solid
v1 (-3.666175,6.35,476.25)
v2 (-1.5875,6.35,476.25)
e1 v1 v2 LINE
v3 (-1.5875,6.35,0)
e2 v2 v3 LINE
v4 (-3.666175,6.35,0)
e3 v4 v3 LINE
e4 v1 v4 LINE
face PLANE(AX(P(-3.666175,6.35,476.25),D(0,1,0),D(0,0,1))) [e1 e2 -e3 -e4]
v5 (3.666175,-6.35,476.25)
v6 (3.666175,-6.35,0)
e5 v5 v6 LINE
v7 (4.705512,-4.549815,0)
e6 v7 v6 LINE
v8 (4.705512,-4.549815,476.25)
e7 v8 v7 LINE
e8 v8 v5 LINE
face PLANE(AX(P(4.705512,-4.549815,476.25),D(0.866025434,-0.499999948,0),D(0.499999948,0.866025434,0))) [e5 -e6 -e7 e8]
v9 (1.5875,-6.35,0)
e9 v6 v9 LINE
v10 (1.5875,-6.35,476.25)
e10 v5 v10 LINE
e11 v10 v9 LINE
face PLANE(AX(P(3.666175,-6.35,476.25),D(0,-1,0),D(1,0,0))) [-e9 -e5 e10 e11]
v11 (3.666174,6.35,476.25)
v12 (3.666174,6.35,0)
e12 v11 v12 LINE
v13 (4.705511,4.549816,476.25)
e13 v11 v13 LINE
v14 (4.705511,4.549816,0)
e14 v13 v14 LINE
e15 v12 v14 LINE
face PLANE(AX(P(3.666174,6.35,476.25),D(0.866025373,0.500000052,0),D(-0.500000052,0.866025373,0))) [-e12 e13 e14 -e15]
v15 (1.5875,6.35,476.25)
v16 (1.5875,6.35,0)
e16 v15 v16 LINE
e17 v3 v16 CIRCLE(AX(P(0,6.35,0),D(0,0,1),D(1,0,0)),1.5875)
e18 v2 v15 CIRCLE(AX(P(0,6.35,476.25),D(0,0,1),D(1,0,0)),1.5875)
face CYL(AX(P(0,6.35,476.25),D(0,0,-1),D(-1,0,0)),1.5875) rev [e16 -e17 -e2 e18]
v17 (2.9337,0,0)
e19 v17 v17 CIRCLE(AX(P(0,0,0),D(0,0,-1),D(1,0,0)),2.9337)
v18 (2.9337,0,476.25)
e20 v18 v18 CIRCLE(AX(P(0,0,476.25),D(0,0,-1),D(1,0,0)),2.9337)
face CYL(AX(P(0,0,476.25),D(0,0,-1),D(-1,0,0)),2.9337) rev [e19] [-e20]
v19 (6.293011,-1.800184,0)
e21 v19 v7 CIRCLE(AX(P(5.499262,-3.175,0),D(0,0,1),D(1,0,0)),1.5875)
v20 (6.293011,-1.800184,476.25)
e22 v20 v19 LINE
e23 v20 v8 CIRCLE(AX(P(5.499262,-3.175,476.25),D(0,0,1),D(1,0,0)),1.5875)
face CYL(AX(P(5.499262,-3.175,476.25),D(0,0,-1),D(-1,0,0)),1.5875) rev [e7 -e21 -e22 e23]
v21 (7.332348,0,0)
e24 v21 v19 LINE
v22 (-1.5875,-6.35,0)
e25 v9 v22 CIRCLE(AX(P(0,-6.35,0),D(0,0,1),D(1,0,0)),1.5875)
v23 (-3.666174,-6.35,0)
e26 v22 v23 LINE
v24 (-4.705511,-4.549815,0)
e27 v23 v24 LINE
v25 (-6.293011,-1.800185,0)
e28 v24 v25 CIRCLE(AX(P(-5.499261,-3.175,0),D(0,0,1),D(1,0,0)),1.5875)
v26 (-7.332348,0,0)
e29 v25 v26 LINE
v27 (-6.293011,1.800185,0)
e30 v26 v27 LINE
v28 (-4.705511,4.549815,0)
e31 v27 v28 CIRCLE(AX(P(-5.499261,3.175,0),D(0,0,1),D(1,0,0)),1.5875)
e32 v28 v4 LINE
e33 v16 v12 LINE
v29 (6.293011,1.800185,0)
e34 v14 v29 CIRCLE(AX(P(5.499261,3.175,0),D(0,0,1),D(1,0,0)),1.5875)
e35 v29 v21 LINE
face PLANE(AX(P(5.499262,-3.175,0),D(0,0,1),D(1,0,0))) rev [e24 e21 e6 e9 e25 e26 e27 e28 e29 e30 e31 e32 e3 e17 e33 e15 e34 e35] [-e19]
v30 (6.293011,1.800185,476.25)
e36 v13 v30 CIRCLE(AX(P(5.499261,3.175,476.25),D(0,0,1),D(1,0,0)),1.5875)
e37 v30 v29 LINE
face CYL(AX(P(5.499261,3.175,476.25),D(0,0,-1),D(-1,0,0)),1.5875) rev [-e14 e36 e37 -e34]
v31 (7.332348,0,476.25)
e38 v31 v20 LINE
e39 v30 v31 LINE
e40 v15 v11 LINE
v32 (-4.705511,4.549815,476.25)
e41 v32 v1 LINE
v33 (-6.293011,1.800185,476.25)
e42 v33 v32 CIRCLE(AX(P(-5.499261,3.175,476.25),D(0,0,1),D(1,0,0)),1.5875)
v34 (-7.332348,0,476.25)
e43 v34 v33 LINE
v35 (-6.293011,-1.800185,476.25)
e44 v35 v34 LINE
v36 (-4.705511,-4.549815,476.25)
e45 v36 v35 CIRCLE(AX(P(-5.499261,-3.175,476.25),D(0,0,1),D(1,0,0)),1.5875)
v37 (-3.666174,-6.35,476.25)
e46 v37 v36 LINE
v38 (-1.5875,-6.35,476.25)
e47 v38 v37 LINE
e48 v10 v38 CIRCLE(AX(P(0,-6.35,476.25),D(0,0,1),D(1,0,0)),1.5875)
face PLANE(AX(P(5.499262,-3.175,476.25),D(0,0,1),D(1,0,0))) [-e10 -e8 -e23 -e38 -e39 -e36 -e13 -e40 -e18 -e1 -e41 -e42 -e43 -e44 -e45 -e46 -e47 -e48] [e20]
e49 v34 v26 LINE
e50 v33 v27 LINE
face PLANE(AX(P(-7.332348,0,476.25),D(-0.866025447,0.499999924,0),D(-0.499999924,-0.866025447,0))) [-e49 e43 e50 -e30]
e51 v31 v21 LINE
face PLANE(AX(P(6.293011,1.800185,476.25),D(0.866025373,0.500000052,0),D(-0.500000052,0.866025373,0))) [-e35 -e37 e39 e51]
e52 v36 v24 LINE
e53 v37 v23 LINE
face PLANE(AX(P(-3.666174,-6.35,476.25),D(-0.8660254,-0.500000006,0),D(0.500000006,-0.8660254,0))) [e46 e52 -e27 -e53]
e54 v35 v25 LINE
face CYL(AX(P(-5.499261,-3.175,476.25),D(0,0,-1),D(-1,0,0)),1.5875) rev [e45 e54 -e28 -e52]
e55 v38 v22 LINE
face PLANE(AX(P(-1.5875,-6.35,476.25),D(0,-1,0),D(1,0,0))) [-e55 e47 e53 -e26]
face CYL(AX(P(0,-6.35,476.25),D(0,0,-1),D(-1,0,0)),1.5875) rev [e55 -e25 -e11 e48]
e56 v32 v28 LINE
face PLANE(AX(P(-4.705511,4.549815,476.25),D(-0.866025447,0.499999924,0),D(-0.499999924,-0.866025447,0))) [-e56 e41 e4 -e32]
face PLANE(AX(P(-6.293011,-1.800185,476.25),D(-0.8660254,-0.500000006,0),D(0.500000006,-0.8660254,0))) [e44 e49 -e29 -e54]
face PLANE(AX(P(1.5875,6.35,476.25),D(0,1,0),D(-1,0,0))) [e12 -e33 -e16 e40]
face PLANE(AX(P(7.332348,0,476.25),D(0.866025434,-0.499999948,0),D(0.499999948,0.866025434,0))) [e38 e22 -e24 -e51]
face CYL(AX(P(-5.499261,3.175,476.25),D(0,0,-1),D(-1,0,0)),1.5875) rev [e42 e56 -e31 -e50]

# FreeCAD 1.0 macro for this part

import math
import FreeCAD as App
import Part
import Sketcher
from FreeCAD import Vector
Q = App.Units.Quantity

doc = App.newDocument("Part")
body = doc.addObject("PartDesign::Body", "Body")

# Sketch on XY plane
sketch1 = body.newObject("Sketcher::SketchObject", "Sketch")
sketch1.AttachmentSupport = (doc.getObject("XY_Plane"), [""])
sketch1.MapMode = "FlatFace"
sketch1.addGeometry([
    Part.LineSegment(Vector(4.7, -4.5, 0), Vector(3.7, -6.3, 0)),  # 0
    Part.LineSegment(Vector(3.7, -6.3, 0), Vector(1.6, -6.3, 0)),  # 1
    Part.ArcOfCircle(Part.Circle(Vector(0, -6.3, 0), Vector(0, 0, 1), 1.6), math.radians(0), math.radians(180)),  # 2
    Part.LineSegment(Vector(-1.6, -6.3, 0), Vector(-3.7, -6.3, 0)),  # 3
    Part.LineSegment(Vector(-3.7, -6.3, 0), Vector(-4.7, -4.5, 0)),  # 4
    Part.ArcOfCircle(Part.Circle(Vector(-5.5, -3.2, 0), Vector(0, 0, 1), 1.6), math.radians(-60), math.radians(120)),  # 5
    Part.LineSegment(Vector(-6.3, -1.8, 0), Vector(-7.3, 0, 0)),  # 6
    Part.LineSegment(Vector(-7.3, 0, 0), Vector(-6.3, 1.8, 0)),  # 7
    Part.ArcOfCircle(Part.Circle(Vector(-5.5, 3.2, 0), Vector(0, 0, 1), 1.6), math.radians(-120), math.radians(60)),  # 8
    Part.LineSegment(Vector(-4.7, 4.5, 0), Vector(-3.7, 6.4, 0)),  # 9
    Part.LineSegment(Vector(-3.7, 6.4, 0), Vector(-1.6, 6.4, 0)),  # 10
    Part.ArcOfCircle(Part.Circle(Vector(0, 6.4, 0), Vector(0, 0, 1), 1.6), math.radians(180), math.radians(360)),  # 11
    Part.LineSegment(Vector(1.6, 6.4, 0), Vector(3.7, 6.4, 0)),  # 12
    Part.LineSegment(Vector(3.7, 6.4, 0), Vector(4.7, 4.5, 0)),  # 13
    Part.ArcOfCircle(Part.Circle(Vector(5.5, 3.2, 0), Vector(0, 0, 1), 1.6), math.radians(120), math.radians(300)),  # 14
    Part.LineSegment(Vector(6.3, 1.8, 0), Vector(7.3, 0, 0)),  # 15
    Part.LineSegment(Vector(7.3, 0, 0), Vector(6.3, -1.8, 0)),  # 16
    Part.ArcOfCircle(Part.Circle(Vector(5.5, -3.2, 0), Vector(0, 0, 1), 1.6), math.radians(60), math.radians(240)),  # 17
    Part.Circle(Vector(0, 0, 0), Vector(0, 0, 1), 2.9),  # 18
], False)
sketch1.addConstraint([
    Sketcher.Constraint("Coincident", 0, 2, 1, 1),
    Sketcher.Constraint("Coincident", 1, 2, 2, 1),
    Sketcher.Constraint("Coincident", 2, 2, 3, 1),
    Sketcher.Constraint("Coincident", 3, 2, 4, 1),
    Sketcher.Constraint("Coincident", 4, 2, 5, 1),
    Sketcher.Constraint("Coincident", 5, 2, 6, 1),
    Sketcher.Constraint("Coincident", 6, 2, 7, 1),
    Sketcher.Constraint("Coincident", 7, 2, 8, 1),
    Sketcher.Constraint("Coincident", 8, 2, 9, 1),
    Sketcher.Constraint("Coincident", 9, 2, 10, 1),
    Sketcher.Constraint("Coincident", 10, 2, 11, 1),
    Sketcher.Constraint("Coincident", 11, 2, 12, 1),
    Sketcher.Constraint("Coincident", 12, 2, 13, 1),
    Sketcher.Constraint("Coincident", 13, 2, 14, 1),
    Sketcher.Constraint("Coincident", 14, 2, 15, 1),
    Sketcher.Constraint("Coincident", 15, 2, 16, 1),
    Sketcher.Constraint("Coincident", 16, 2, 17, 1),
    Sketcher.Constraint("Coincident", 17, 2, 0, 1),
    Sketcher.Constraint("Horizontal", 1),
    Sketcher.Constraint("Horizontal", 3),
    Sketcher.Constraint("Horizontal", 10),
    Sketcher.Constraint("Horizontal", 12),
    Sketcher.Constraint("Coincident", 18, 3, -1, 1),
    Sketcher.Constraint("Equal", 2, 5),
    Sketcher.Constraint("Equal", 5, 8),
    Sketcher.Constraint("Equal", 8, 11),
    Sketcher.Constraint("Equal", 11, 14),
    Sketcher.Constraint("Equal", 14, 17),
    Sketcher.Constraint("Symmetric", 2, 3, 11, 3, -1, 1),
    Sketcher.Constraint("Symmetric", 5, 3, 14, 3, -1, 1),
    Sketcher.Constraint("Symmetric", 8, 3, 17, 3, -1, 1),
    Sketcher.Constraint("Symmetric", 0, 2, 9, 2, -1, 1),
    Sketcher.Constraint("Symmetric", 3, 2, 12, 2, -1, 1),
    Sketcher.Constraint("Symmetric", 6, 2, 15, 2, -1, 1),
    Sketcher.Constraint("Symmetric", 8, 3, 14, 3, -2),
    Sketcher.Constraint("Symmetric", 1, 2, 2, 2, -2),
    Sketcher.Constraint("PointOnObject", 6, 2, -1),
    Sketcher.Constraint("Parallel", 4, 6),
    Sketcher.Constraint("Parallel", 0, 7),
    Sketcher.Constraint("Parallel", 7, 9),
    Sketcher.Constraint("Parallel", 6, 13),
    Sketcher.Constraint("Parallel", 13, 15),
    Sketcher.Constraint("Parallel", 9, 16),
    Sketcher.Constraint("Horizontal", 2, 3, 0, 2),
    Sketcher.Constraint("Horizontal", 8, 2, 13, 2),
    Sketcher.Constraint("Horizontal", 7, 2, 14, 2),
    Sketcher.Constraint("Equal", 4, 6),
    Sketcher.Constraint("Diameter", 18, Q("0.231 in")),
    Sketcher.Constraint("Angle", 0, Q("-119.999997 deg")),
    Sketcher.Constraint("Radius", 2, Q("0.0625 in")),
    Sketcher.Constraint("DistanceY", 2, 3, 11, 3, Q("0.5 in")),
    Sketcher.Constraint("DistanceY", 5, 3, 8, 3, Q("0.25 in")),
    Sketcher.Constraint("DistanceX", 5, 3, 4, 2, Q("0.03125 in")),
    Sketcher.Constraint("DistanceX", 1, 2, 1, 1, 2.078674),
])
pad1 = body.newObject("PartDesign::Pad", "Pad")
pad1.Profile = sketch1
pad1.Length = Q("18.75 in")

doc.recompute()
